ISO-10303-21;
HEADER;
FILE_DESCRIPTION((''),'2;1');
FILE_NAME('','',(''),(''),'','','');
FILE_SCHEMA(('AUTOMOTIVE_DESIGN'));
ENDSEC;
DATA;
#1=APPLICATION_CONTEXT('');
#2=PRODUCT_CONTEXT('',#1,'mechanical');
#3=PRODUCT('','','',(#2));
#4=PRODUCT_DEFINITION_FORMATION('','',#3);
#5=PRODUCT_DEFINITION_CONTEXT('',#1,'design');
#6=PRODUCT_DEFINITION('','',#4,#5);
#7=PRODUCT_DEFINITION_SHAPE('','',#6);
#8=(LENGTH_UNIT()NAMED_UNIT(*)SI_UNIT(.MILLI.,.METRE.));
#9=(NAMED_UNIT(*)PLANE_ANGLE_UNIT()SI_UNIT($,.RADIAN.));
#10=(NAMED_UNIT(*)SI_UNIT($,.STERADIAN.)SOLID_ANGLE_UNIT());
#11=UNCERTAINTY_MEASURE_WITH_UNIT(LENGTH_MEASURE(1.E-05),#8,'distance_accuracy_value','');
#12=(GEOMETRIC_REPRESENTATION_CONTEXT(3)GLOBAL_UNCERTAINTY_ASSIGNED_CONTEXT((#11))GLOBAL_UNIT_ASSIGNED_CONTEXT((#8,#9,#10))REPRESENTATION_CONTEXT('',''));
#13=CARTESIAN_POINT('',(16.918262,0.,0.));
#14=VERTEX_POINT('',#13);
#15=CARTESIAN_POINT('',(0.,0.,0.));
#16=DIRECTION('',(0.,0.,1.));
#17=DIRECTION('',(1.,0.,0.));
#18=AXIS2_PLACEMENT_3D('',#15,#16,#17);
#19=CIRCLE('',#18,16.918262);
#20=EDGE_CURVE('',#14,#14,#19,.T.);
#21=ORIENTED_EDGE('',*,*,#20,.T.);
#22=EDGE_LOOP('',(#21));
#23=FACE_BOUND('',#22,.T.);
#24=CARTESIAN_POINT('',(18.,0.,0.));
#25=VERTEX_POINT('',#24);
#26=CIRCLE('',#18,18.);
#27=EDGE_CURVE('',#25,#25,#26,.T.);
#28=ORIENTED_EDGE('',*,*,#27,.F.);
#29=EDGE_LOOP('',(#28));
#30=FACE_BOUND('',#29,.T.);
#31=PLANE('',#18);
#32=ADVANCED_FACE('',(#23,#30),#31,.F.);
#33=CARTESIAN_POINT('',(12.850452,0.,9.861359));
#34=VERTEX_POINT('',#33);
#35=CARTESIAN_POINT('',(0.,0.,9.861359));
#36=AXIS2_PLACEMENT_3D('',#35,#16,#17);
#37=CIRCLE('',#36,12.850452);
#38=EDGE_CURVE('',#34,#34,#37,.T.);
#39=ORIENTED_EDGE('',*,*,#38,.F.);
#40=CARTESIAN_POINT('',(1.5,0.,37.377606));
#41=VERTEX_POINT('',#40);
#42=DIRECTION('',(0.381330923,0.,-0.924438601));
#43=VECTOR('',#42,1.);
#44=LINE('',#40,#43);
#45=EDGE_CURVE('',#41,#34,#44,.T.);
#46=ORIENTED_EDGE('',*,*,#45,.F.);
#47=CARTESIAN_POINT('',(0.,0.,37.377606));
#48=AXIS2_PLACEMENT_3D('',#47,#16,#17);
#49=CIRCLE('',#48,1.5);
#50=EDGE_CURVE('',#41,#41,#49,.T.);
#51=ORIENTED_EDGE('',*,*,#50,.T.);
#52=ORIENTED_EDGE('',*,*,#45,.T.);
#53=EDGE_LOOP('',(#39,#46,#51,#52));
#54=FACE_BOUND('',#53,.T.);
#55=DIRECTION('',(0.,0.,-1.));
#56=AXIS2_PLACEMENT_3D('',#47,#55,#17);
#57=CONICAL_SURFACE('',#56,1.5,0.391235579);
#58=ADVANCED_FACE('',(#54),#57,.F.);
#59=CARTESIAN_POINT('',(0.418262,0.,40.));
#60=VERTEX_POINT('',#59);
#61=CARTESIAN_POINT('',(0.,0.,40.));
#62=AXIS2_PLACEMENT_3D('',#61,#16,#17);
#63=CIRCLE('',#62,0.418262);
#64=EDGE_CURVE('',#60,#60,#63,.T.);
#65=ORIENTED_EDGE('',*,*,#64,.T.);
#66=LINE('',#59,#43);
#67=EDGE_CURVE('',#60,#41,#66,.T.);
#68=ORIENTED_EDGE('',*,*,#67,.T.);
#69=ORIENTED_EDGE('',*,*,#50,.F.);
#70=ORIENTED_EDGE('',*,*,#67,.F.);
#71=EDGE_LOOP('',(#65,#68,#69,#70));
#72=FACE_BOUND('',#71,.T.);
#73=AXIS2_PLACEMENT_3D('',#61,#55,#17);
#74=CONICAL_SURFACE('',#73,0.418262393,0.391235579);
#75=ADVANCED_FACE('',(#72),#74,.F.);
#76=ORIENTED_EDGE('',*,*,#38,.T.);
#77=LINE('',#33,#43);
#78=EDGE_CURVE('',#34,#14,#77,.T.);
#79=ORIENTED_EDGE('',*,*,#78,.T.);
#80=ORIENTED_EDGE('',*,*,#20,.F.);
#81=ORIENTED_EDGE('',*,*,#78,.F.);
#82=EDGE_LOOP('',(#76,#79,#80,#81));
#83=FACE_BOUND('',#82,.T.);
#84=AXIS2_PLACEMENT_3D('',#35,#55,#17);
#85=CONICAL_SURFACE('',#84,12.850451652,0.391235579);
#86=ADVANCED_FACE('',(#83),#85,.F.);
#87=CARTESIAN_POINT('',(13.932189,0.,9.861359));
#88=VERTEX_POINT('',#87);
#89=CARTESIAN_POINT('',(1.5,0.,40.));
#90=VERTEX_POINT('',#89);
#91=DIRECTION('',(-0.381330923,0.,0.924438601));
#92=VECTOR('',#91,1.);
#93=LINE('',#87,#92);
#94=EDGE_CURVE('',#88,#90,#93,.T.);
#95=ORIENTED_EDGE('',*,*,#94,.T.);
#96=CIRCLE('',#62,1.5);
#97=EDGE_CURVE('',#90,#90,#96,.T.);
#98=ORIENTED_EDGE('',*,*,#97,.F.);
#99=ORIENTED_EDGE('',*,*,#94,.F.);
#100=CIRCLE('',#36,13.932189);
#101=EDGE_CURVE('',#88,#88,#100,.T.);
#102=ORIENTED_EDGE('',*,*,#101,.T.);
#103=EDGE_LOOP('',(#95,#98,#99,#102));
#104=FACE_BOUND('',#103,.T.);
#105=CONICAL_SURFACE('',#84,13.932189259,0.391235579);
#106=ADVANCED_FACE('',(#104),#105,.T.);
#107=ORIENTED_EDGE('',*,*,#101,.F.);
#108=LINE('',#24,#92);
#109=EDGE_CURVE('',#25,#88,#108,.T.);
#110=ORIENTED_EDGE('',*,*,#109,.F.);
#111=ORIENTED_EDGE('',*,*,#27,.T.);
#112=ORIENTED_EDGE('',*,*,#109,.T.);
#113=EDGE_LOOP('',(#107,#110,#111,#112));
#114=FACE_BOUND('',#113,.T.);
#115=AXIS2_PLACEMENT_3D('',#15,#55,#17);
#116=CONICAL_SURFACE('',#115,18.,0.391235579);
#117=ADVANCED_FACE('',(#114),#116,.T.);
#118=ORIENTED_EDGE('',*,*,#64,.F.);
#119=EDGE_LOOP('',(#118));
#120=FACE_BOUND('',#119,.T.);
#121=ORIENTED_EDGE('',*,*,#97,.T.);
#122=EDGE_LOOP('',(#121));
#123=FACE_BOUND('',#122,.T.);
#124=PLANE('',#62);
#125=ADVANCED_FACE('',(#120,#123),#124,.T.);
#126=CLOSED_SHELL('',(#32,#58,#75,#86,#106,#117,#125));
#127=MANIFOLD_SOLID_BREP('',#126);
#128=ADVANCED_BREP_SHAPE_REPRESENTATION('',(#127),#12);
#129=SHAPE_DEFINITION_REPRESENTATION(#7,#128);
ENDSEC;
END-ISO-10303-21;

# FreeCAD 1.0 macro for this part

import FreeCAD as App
import Part
import Sketcher
Q = App.Units.Quantity

doc = App.newDocument("Part")
body = doc.addObject("PartDesign::Body", "Body")

sketch1 = body.newObject("Sketcher::SketchObject", "Sketch")
sketch1.AttachmentSupport = (doc.getObject("XZ_Plane"), [""])
sketch1.MapMode = "FlatFace"
sketch1.addGeometry([
    Part.LineSegment(App.Vector(12.9, 9.9, 0), App.Vector(16.9, 0, 0)),
    Part.LineSegment(App.Vector(16.9, 0, 0), App.Vector(18, 0, 0)),
    Part.LineSegment(App.Vector(18, 0, 0), App.Vector(13.9, 9.9, 0)),
    Part.LineSegment(App.Vector(13.9, 9.9, 0), App.Vector(1.5, 40, 0)),
    Part.LineSegment(App.Vector(1.5, 40, 0), App.Vector(0.4, 40, 0)),
    Part.LineSegment(App.Vector(0.4, 40, 0), App.Vector(1.5, 37.4, 0)),
    Part.LineSegment(App.Vector(1.5, 37.4, 0), App.Vector(12.9, 9.9, 0)),
], False)
sketch1.addConstraint([
    Sketcher.Constraint("Coincident", 0, 2, 1, 1),
    Sketcher.Constraint("Coincident", 1, 2, 2, 1),
    Sketcher.Constraint("Coincident", 2, 2, 3, 1),
    Sketcher.Constraint("Coincident", 3, 2, 4, 1),
    Sketcher.Constraint("Coincident", 4, 2, 5, 1),
    Sketcher.Constraint("Coincident", 5, 2, 6, 1),
    Sketcher.Constraint("Coincident", 6, 2, 0, 1),
    Sketcher.Constraint("Horizontal", 1),
    Sketcher.Constraint("Horizontal", 4),
    Sketcher.Constraint("PointOnObject", 0, 2, -1),
    Sketcher.Constraint("Parallel", 0, 2),
    Sketcher.Constraint("Parallel", 2, 3),
    Sketcher.Constraint("Parallel", 3, 5),
    Sketcher.Constraint("Parallel", 5, 6),
    Sketcher.Constraint("Horizontal", 2, 2, 6, 2),
    Sketcher.Constraint("Vertical", 3, 2, 5, 2),
    Sketcher.Constraint("DistanceX", -1, 1, 1, 2, Q("18 mm")),
    Sketcher.Constraint("DistanceY", -1, 1, 3, 2, Q("40 mm")),
    Sketcher.Constraint("DistanceX", -1, 1, 3, 2, Q("1.5 mm")),
    Sketcher.Constraint("Distance", 3, Q("32.602101 mm")),
    Sketcher.Constraint("Distance", 6, Q("29.765359 mm")),
])
revolution = body.newObject("PartDesign::Revolution", "Revolution")
revolution.Profile = sketch1
revolution.ReferenceAxis = (sketch1, ["V_Axis"])
revolution.Angle = 360

doc.recompute()
